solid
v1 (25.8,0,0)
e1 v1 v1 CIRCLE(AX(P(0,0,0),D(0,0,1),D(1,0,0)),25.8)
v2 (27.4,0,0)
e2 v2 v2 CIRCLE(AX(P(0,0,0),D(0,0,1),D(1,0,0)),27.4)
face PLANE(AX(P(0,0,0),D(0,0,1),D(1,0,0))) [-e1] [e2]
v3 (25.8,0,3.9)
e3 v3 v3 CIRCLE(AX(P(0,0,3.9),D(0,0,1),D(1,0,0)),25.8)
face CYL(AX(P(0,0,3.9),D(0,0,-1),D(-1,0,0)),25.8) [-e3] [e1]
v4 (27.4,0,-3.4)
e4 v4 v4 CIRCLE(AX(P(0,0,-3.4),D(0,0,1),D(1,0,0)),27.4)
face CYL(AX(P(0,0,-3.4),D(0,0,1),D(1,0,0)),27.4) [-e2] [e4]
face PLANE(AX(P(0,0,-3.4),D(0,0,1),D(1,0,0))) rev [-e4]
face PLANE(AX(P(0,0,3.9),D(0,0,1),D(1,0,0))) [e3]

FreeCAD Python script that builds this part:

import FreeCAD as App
import Part
import Sketcher
from FreeCAD import Vector

doc = App.newDocument("Part")
params = doc.addObject("Spreadsheet::Sheet", "Params")
for row, (alias, value) in enumerate([
    ("sketch1_diameter", "54.8 mm"),
    ("pad1_length", "3.4 mm"),
    ("sketch2_diameter", "51.6 mm"),
    ("pad2_length", "3.9 mm"),
], start=1):
    params.set(f"A{row}", alias)
    params.set(f"B{row}", "=" + value)
    params.setAlias(f"B{row}", alias)

body = doc.addObject("PartDesign::Body", "Body")

# Sketch on XY plane
sketch1 = body.newObject("Sketcher::SketchObject", "Sketch")
sketch1.AttachmentSupport = (doc.getObject("XY_Plane"), [""])
sketch1.MapMode = "FlatFace"
sketch1.addGeometry(Part.Circle(Vector(0, 0, 0), Vector(0, 0, 1), 27), False)
sketch1.addConstraint([
    Sketcher.Constraint("Coincident", 0, 3, -1, 1),
    Sketcher.Constraint("Diameter", 0, 54.8),
])
sketch1.setExpression("Constraints[1]", "Params.sketch1_diameter")
pad1 = body.newObject("PartDesign::Pad", "Pad")
pad1.Profile = sketch1
pad1.setExpression("Length", "Params.pad1_length")
pad1.Reversed = True

# Sketch on XY plane
sketch2 = body.newObject("Sketcher::SketchObject", "Sketch001")
sketch2.AttachmentSupport = (doc.getObject("XY_Plane"), [""])
sketch2.MapMode = "FlatFace"
sketch2.addGeometry(Part.Circle(Vector(0, 0, 0), Vector(0, 0, 1), 26), False)
sketch2.addConstraint([
    Sketcher.Constraint("Coincident", 0, 3, -1, 1),
    Sketcher.Constraint("Diameter", 0, 51.6),
])
sketch2.setExpression("Constraints[1]", "Params.sketch2_diameter")
pad2 = body.newObject("PartDesign::Pad", "Pad001")
pad2.Profile = sketch2
pad2.setExpression("Length", "Params.pad2_length")

doc.recompute()
